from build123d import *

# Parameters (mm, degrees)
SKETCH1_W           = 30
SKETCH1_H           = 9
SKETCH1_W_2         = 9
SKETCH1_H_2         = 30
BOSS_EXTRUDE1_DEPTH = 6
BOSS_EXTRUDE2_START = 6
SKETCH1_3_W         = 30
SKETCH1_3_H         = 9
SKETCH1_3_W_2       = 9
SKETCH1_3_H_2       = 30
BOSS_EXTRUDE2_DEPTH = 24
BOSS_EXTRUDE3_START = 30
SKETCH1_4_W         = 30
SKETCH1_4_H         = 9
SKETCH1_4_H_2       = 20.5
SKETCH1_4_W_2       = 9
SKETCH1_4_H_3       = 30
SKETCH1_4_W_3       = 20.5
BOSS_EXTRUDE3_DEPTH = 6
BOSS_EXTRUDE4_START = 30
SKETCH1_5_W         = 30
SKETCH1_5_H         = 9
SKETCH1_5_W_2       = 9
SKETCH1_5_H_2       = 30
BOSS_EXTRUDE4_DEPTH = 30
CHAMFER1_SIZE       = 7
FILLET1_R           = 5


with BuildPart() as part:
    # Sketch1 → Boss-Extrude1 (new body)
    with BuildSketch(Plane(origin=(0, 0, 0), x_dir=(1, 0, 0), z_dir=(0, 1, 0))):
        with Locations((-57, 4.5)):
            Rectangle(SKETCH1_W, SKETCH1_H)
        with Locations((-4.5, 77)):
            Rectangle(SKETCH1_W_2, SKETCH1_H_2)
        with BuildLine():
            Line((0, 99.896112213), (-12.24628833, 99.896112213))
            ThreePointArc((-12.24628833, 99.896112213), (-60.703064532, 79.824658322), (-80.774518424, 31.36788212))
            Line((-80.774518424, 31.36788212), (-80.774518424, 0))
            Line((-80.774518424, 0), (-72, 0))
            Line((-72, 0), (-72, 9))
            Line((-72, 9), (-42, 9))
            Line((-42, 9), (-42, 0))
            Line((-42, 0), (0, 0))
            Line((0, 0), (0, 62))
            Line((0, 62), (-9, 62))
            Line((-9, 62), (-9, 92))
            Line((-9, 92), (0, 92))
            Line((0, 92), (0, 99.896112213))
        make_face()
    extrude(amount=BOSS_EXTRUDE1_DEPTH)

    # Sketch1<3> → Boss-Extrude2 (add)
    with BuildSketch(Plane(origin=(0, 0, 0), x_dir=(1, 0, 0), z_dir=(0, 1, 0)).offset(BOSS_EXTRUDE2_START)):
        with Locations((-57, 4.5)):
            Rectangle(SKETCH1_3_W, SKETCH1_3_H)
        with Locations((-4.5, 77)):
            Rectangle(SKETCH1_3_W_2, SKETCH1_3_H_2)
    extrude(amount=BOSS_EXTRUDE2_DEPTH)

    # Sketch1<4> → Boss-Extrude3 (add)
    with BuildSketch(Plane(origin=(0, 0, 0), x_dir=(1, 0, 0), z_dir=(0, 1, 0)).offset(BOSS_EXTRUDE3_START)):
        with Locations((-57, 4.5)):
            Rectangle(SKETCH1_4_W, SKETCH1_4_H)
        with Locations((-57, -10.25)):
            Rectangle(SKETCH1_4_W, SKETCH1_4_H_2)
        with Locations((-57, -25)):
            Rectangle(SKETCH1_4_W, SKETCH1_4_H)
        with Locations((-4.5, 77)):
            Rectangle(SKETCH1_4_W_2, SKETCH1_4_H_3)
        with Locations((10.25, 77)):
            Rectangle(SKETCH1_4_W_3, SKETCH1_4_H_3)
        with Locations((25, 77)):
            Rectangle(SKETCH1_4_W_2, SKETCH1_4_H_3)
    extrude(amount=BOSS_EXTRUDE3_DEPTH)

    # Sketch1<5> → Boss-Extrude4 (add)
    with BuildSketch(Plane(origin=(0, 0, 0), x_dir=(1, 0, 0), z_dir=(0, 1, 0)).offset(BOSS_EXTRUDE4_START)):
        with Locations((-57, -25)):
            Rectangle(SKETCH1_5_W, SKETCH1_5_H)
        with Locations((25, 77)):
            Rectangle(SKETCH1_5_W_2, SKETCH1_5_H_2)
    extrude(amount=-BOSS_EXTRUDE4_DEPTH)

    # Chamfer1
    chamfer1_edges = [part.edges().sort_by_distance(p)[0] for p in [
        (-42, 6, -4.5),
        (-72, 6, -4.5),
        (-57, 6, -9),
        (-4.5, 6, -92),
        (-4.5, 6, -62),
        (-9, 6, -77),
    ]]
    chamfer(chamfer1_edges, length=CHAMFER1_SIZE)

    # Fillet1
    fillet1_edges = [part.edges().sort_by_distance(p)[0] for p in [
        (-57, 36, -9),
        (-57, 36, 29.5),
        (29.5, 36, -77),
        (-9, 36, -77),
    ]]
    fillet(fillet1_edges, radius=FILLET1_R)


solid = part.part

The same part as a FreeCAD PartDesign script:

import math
import FreeCAD as App
import Part
import Sketcher


def edges_at(feature, points):
    """Names of the edges that pass closest to the given points."""
    edges = feature.Shape.Edges
    near = lambda p: min(range(len(edges)), key=lambda i: edges[i].distToShape(Part.Vertex(*p))[0])
    return sorted({f"Edge{near(p) + 1}" for p in points})


def add_polygon(sketch, points):
    """Adds a closed chain of lines whose ends are joined by coincident constraints."""
    first, n = sketch.GeometryCount, len(points)
    for a, b in zip(points, points[1:] + points[:1]):
        sketch.addGeometry(Part.LineSegment(App.Vector(*a, 0), App.Vector(*b, 0)), False)
    for i in range(n):
        sketch.addConstraint(Sketcher.Constraint("Coincident", first + i, 2, first + (i + 1) % n, 1))

doc = App.newDocument("Part")
body = doc.addObject("PartDesign::Body", "Body")

# Sketch on XZ plane
sketch1 = doc.addObject("Sketcher::SketchObject", "Sketch")
body.addObject(sketch1)
sketch1.AttachmentSupport = (doc.XZ_Plane, [""])
sketch1.MapMode = "FlatFace"
sketch1.addGeometry([
    Part.LineSegment(App.Vector(0, 0, 0), App.Vector(0, -100, 0)),  # 0
    Part.LineSegment(App.Vector(0, -100, 0), App.Vector(-12, -100, 0)),  # 1
    Part.ArcOfCircle(Part.Circle(App.Vector(-12, -31, 0), App.Vector(0, 0, 1), 69), math.radians(180), math.radians(270)),  # 2
    Part.LineSegment(App.Vector(-81, -31, 0), App.Vector(-81, 0, 0)),  # 3
    Part.LineSegment(App.Vector(-81, 0, 0), App.Vector(0, 0, 0)),  # 4
], False)
sketch1.addConstraint([
    Sketcher.Constraint("Coincident", 0, 2, 1, 1),
    Sketcher.Constraint("Tangent", 1, 2, 2, 2),
    Sketcher.Constraint("Tangent", 2, 1, 3, 1),
    Sketcher.Constraint("Coincident", 3, 2, 4, 1),
    Sketcher.Constraint("Coincident", 4, 2, 0, 1),
    Sketcher.Constraint("Vertical", 0),
    Sketcher.Constraint("Horizontal", 1),
    Sketcher.Constraint("Vertical", 3),
    Sketcher.Constraint("Horizontal", 4),
    Sketcher.Constraint("Coincident", 4, 2, -1, 1),
    Sketcher.Constraint("Radius", 2, 68.52823),
    Sketcher.Constraint("DistanceX", 1, 2, 1, 1, 12.246288),
    Sketcher.Constraint("DistanceY", 0, 2, 0, 1, 99.896112),
])
pad1 = doc.addObject("PartDesign::Pad", "Pad")
body.addObject(pad1)
pad1.Profile = sketch1
pad1.Length = 6
pad1.Reversed = True

# Sketch on XZ plane
sketch2 = doc.addObject("Sketcher::SketchObject", "Sketch001")
body.addObject(sketch2)
sketch2.AttachmentSupport = (doc.XZ_Plane, [""])
sketch2.MapMode = "FlatFace"
sketch2.AttachmentOffset = App.Placement(App.Vector(0, 0, -6), App.Rotation())
add_polygon(sketch2, [(-72, -9), (-72, 0), (-42, 0), (-42, -9)])  # lines 0-3
add_polygon(sketch2, [(-9, -92), (-9, -62), (0, -62), (0, -92)])  # lines 4-7
sketch2.addConstraint([
    Sketcher.Constraint("Vertical", 0),
    Sketcher.Constraint("Horizontal", 1),
    Sketcher.Constraint("Vertical", 2),
    Sketcher.Constraint("Horizontal", 3),
    Sketcher.Constraint("Vertical", 4),
    Sketcher.Constraint("Horizontal", 5),
    Sketcher.Constraint("Vertical", 6),
    Sketcher.Constraint("Horizontal", 7),
    Sketcher.Constraint("PointOnObject", 0, 2, -1),
    Sketcher.Constraint("PointOnObject", 5, 2, -2),
    Sketcher.Constraint("Equal", 7, 0),
    Sketcher.Constraint("Equal", 3, 4),
    Sketcher.Constraint("DistanceX", 1, 1, 1, 2, 30.0),
    Sketcher.Constraint("DistanceX", 5, 1, 5, 2, 9.0),
    Sketcher.Constraint("DistanceX", 0, 2, -1, 1, 72.0),
    Sketcher.Constraint("DistanceY", 4, 2, -1, 1, 62.0),
])
pad2 = doc.addObject("PartDesign::Pad", "Pad001")
body.addObject(pad2)
pad2.Profile = sketch2
pad2.Length = 24
pad2.Reversed = True

# Sketch on XZ plane
sketch3 = doc.addObject("Sketcher::SketchObject", "Sketch002")
body.addObject(sketch3)
sketch3.AttachmentSupport = (doc.XZ_Plane, [""])
sketch3.MapMode = "FlatFace"
sketch3.AttachmentOffset = App.Placement(App.Vector(0, 0, -30), App.Rotation())
add_polygon(sketch3, [(-72, -9), (-72, 30), (-42, 30), (-42, -9)])  # lines 0-3
add_polygon(sketch3, [(-9, -92), (-9, -62), (30, -62), (30, -92)])  # lines 4-7
sketch3.addConstraint([
    Sketcher.Constraint("Vertical", 0),
    Sketcher.Constraint("Horizontal", 1),
    Sketcher.Constraint("Vertical", 2),
    Sketcher.Constraint("Horizontal", 3),
    Sketcher.Constraint("Vertical", 4),
    Sketcher.Constraint("Horizontal", 5),
    Sketcher.Constraint("Vertical", 6),
    Sketcher.Constraint("Horizontal", 7),
    Sketcher.Constraint("Equal", 7, 0),
    Sketcher.Constraint("Equal", 3, 4),
    Sketcher.Constraint("DistanceX", 1, 1, 1, 2, 30.0),
    Sketcher.Constraint("DistanceX", 5, 1, 5, 2, 38.5),
    Sketcher.Constraint("DistanceX", 0, 2, -1, 1, 72.0),
    Sketcher.Constraint("DistanceY", 2, 2, -1, 1, 9.0),
    Sketcher.Constraint("DistanceX", 4, 2, -1, 1, 9.0),
    Sketcher.Constraint("DistanceY", 4, 2, -1, 1, 62.0),
])
pad3 = doc.addObject("PartDesign::Pad", "Pad002")
body.addObject(pad3)
pad3.Profile = sketch3
pad3.Length = 6
pad3.Reversed = True

# Sketch on XZ plane
sketch4 = doc.addObject("Sketcher::SketchObject", "Sketch003")
body.addObject(sketch4)
sketch4.AttachmentSupport = (doc.XZ_Plane, [""])
sketch4.MapMode = "FlatFace"
sketch4.AttachmentOffset = App.Placement(App.Vector(0, 0, -30), App.Rotation())
add_polygon(sketch4, [(-72, 20), (-72, 30), (-42, 30), (-42, 20)])  # lines 0-3
add_polygon(sketch4, [(20, -92), (20, -62), (30, -62), (30, -92)])  # lines 4-7
sketch4.addConstraint([
    Sketcher.Constraint("Vertical", 0),
    Sketcher.Constraint("Horizontal", 1),
    Sketcher.Constraint("Vertical", 2),
    Sketcher.Constraint("Horizontal", 3),
    Sketcher.Constraint("Vertical", 4),
    Sketcher.Constraint("Horizontal", 5),
    Sketcher.Constraint("Vertical", 6),
    Sketcher.Constraint("Horizontal", 7),
    Sketcher.Constraint("Equal", 7, 0),
    Sketcher.Constraint("Equal", 3, 4),
    Sketcher.Constraint("DistanceX", 1, 1, 1, 2, 30.0),
    Sketcher.Constraint("DistanceX", 5, 1, 5, 2, 9.0),
    Sketcher.Constraint("DistanceX", 0, 2, -1, 1, 72.0),
    Sketcher.Constraint("DistanceY", 4, 2, -1, 1, 62.0),
    Sketcher.Constraint("DistanceY", -1, 1, 0, 2, 29.5),
    Sketcher.Constraint("DistanceX", -1, 1, 4, 2, 20.5),
])
pad4 = doc.addObject("PartDesign::Pad", "Pad003")
body.addObject(pad4)
pad4.Profile = sketch4
pad4.Length = 30
doc.recompute()

chamfer = doc.addObject("PartDesign::Chamfer", "Chamfer")
body.addObject(chamfer)
chamfer.Base = (pad4, edges_at(pad4, [
    (-42, 6, -4.5),
    (-72, 6, -4.5),
    (-57, 6, -9),
    (-4.5, 6, -92),
    (-4.5, 6, -62),
    (-9, 6, -77),
]))
chamfer.Size = 7
doc.recompute()

fillet = doc.addObject("PartDesign::Fillet", "Fillet")
body.addObject(fillet)
fillet.Base = (chamfer, edges_at(chamfer, [
    (-57, 36, -9),
    (-57, 36, 29.5),
    (29.5, 36, -77),
    (-9, 36, -77),
]))
fillet.Radius = 5

doc.recompute()
